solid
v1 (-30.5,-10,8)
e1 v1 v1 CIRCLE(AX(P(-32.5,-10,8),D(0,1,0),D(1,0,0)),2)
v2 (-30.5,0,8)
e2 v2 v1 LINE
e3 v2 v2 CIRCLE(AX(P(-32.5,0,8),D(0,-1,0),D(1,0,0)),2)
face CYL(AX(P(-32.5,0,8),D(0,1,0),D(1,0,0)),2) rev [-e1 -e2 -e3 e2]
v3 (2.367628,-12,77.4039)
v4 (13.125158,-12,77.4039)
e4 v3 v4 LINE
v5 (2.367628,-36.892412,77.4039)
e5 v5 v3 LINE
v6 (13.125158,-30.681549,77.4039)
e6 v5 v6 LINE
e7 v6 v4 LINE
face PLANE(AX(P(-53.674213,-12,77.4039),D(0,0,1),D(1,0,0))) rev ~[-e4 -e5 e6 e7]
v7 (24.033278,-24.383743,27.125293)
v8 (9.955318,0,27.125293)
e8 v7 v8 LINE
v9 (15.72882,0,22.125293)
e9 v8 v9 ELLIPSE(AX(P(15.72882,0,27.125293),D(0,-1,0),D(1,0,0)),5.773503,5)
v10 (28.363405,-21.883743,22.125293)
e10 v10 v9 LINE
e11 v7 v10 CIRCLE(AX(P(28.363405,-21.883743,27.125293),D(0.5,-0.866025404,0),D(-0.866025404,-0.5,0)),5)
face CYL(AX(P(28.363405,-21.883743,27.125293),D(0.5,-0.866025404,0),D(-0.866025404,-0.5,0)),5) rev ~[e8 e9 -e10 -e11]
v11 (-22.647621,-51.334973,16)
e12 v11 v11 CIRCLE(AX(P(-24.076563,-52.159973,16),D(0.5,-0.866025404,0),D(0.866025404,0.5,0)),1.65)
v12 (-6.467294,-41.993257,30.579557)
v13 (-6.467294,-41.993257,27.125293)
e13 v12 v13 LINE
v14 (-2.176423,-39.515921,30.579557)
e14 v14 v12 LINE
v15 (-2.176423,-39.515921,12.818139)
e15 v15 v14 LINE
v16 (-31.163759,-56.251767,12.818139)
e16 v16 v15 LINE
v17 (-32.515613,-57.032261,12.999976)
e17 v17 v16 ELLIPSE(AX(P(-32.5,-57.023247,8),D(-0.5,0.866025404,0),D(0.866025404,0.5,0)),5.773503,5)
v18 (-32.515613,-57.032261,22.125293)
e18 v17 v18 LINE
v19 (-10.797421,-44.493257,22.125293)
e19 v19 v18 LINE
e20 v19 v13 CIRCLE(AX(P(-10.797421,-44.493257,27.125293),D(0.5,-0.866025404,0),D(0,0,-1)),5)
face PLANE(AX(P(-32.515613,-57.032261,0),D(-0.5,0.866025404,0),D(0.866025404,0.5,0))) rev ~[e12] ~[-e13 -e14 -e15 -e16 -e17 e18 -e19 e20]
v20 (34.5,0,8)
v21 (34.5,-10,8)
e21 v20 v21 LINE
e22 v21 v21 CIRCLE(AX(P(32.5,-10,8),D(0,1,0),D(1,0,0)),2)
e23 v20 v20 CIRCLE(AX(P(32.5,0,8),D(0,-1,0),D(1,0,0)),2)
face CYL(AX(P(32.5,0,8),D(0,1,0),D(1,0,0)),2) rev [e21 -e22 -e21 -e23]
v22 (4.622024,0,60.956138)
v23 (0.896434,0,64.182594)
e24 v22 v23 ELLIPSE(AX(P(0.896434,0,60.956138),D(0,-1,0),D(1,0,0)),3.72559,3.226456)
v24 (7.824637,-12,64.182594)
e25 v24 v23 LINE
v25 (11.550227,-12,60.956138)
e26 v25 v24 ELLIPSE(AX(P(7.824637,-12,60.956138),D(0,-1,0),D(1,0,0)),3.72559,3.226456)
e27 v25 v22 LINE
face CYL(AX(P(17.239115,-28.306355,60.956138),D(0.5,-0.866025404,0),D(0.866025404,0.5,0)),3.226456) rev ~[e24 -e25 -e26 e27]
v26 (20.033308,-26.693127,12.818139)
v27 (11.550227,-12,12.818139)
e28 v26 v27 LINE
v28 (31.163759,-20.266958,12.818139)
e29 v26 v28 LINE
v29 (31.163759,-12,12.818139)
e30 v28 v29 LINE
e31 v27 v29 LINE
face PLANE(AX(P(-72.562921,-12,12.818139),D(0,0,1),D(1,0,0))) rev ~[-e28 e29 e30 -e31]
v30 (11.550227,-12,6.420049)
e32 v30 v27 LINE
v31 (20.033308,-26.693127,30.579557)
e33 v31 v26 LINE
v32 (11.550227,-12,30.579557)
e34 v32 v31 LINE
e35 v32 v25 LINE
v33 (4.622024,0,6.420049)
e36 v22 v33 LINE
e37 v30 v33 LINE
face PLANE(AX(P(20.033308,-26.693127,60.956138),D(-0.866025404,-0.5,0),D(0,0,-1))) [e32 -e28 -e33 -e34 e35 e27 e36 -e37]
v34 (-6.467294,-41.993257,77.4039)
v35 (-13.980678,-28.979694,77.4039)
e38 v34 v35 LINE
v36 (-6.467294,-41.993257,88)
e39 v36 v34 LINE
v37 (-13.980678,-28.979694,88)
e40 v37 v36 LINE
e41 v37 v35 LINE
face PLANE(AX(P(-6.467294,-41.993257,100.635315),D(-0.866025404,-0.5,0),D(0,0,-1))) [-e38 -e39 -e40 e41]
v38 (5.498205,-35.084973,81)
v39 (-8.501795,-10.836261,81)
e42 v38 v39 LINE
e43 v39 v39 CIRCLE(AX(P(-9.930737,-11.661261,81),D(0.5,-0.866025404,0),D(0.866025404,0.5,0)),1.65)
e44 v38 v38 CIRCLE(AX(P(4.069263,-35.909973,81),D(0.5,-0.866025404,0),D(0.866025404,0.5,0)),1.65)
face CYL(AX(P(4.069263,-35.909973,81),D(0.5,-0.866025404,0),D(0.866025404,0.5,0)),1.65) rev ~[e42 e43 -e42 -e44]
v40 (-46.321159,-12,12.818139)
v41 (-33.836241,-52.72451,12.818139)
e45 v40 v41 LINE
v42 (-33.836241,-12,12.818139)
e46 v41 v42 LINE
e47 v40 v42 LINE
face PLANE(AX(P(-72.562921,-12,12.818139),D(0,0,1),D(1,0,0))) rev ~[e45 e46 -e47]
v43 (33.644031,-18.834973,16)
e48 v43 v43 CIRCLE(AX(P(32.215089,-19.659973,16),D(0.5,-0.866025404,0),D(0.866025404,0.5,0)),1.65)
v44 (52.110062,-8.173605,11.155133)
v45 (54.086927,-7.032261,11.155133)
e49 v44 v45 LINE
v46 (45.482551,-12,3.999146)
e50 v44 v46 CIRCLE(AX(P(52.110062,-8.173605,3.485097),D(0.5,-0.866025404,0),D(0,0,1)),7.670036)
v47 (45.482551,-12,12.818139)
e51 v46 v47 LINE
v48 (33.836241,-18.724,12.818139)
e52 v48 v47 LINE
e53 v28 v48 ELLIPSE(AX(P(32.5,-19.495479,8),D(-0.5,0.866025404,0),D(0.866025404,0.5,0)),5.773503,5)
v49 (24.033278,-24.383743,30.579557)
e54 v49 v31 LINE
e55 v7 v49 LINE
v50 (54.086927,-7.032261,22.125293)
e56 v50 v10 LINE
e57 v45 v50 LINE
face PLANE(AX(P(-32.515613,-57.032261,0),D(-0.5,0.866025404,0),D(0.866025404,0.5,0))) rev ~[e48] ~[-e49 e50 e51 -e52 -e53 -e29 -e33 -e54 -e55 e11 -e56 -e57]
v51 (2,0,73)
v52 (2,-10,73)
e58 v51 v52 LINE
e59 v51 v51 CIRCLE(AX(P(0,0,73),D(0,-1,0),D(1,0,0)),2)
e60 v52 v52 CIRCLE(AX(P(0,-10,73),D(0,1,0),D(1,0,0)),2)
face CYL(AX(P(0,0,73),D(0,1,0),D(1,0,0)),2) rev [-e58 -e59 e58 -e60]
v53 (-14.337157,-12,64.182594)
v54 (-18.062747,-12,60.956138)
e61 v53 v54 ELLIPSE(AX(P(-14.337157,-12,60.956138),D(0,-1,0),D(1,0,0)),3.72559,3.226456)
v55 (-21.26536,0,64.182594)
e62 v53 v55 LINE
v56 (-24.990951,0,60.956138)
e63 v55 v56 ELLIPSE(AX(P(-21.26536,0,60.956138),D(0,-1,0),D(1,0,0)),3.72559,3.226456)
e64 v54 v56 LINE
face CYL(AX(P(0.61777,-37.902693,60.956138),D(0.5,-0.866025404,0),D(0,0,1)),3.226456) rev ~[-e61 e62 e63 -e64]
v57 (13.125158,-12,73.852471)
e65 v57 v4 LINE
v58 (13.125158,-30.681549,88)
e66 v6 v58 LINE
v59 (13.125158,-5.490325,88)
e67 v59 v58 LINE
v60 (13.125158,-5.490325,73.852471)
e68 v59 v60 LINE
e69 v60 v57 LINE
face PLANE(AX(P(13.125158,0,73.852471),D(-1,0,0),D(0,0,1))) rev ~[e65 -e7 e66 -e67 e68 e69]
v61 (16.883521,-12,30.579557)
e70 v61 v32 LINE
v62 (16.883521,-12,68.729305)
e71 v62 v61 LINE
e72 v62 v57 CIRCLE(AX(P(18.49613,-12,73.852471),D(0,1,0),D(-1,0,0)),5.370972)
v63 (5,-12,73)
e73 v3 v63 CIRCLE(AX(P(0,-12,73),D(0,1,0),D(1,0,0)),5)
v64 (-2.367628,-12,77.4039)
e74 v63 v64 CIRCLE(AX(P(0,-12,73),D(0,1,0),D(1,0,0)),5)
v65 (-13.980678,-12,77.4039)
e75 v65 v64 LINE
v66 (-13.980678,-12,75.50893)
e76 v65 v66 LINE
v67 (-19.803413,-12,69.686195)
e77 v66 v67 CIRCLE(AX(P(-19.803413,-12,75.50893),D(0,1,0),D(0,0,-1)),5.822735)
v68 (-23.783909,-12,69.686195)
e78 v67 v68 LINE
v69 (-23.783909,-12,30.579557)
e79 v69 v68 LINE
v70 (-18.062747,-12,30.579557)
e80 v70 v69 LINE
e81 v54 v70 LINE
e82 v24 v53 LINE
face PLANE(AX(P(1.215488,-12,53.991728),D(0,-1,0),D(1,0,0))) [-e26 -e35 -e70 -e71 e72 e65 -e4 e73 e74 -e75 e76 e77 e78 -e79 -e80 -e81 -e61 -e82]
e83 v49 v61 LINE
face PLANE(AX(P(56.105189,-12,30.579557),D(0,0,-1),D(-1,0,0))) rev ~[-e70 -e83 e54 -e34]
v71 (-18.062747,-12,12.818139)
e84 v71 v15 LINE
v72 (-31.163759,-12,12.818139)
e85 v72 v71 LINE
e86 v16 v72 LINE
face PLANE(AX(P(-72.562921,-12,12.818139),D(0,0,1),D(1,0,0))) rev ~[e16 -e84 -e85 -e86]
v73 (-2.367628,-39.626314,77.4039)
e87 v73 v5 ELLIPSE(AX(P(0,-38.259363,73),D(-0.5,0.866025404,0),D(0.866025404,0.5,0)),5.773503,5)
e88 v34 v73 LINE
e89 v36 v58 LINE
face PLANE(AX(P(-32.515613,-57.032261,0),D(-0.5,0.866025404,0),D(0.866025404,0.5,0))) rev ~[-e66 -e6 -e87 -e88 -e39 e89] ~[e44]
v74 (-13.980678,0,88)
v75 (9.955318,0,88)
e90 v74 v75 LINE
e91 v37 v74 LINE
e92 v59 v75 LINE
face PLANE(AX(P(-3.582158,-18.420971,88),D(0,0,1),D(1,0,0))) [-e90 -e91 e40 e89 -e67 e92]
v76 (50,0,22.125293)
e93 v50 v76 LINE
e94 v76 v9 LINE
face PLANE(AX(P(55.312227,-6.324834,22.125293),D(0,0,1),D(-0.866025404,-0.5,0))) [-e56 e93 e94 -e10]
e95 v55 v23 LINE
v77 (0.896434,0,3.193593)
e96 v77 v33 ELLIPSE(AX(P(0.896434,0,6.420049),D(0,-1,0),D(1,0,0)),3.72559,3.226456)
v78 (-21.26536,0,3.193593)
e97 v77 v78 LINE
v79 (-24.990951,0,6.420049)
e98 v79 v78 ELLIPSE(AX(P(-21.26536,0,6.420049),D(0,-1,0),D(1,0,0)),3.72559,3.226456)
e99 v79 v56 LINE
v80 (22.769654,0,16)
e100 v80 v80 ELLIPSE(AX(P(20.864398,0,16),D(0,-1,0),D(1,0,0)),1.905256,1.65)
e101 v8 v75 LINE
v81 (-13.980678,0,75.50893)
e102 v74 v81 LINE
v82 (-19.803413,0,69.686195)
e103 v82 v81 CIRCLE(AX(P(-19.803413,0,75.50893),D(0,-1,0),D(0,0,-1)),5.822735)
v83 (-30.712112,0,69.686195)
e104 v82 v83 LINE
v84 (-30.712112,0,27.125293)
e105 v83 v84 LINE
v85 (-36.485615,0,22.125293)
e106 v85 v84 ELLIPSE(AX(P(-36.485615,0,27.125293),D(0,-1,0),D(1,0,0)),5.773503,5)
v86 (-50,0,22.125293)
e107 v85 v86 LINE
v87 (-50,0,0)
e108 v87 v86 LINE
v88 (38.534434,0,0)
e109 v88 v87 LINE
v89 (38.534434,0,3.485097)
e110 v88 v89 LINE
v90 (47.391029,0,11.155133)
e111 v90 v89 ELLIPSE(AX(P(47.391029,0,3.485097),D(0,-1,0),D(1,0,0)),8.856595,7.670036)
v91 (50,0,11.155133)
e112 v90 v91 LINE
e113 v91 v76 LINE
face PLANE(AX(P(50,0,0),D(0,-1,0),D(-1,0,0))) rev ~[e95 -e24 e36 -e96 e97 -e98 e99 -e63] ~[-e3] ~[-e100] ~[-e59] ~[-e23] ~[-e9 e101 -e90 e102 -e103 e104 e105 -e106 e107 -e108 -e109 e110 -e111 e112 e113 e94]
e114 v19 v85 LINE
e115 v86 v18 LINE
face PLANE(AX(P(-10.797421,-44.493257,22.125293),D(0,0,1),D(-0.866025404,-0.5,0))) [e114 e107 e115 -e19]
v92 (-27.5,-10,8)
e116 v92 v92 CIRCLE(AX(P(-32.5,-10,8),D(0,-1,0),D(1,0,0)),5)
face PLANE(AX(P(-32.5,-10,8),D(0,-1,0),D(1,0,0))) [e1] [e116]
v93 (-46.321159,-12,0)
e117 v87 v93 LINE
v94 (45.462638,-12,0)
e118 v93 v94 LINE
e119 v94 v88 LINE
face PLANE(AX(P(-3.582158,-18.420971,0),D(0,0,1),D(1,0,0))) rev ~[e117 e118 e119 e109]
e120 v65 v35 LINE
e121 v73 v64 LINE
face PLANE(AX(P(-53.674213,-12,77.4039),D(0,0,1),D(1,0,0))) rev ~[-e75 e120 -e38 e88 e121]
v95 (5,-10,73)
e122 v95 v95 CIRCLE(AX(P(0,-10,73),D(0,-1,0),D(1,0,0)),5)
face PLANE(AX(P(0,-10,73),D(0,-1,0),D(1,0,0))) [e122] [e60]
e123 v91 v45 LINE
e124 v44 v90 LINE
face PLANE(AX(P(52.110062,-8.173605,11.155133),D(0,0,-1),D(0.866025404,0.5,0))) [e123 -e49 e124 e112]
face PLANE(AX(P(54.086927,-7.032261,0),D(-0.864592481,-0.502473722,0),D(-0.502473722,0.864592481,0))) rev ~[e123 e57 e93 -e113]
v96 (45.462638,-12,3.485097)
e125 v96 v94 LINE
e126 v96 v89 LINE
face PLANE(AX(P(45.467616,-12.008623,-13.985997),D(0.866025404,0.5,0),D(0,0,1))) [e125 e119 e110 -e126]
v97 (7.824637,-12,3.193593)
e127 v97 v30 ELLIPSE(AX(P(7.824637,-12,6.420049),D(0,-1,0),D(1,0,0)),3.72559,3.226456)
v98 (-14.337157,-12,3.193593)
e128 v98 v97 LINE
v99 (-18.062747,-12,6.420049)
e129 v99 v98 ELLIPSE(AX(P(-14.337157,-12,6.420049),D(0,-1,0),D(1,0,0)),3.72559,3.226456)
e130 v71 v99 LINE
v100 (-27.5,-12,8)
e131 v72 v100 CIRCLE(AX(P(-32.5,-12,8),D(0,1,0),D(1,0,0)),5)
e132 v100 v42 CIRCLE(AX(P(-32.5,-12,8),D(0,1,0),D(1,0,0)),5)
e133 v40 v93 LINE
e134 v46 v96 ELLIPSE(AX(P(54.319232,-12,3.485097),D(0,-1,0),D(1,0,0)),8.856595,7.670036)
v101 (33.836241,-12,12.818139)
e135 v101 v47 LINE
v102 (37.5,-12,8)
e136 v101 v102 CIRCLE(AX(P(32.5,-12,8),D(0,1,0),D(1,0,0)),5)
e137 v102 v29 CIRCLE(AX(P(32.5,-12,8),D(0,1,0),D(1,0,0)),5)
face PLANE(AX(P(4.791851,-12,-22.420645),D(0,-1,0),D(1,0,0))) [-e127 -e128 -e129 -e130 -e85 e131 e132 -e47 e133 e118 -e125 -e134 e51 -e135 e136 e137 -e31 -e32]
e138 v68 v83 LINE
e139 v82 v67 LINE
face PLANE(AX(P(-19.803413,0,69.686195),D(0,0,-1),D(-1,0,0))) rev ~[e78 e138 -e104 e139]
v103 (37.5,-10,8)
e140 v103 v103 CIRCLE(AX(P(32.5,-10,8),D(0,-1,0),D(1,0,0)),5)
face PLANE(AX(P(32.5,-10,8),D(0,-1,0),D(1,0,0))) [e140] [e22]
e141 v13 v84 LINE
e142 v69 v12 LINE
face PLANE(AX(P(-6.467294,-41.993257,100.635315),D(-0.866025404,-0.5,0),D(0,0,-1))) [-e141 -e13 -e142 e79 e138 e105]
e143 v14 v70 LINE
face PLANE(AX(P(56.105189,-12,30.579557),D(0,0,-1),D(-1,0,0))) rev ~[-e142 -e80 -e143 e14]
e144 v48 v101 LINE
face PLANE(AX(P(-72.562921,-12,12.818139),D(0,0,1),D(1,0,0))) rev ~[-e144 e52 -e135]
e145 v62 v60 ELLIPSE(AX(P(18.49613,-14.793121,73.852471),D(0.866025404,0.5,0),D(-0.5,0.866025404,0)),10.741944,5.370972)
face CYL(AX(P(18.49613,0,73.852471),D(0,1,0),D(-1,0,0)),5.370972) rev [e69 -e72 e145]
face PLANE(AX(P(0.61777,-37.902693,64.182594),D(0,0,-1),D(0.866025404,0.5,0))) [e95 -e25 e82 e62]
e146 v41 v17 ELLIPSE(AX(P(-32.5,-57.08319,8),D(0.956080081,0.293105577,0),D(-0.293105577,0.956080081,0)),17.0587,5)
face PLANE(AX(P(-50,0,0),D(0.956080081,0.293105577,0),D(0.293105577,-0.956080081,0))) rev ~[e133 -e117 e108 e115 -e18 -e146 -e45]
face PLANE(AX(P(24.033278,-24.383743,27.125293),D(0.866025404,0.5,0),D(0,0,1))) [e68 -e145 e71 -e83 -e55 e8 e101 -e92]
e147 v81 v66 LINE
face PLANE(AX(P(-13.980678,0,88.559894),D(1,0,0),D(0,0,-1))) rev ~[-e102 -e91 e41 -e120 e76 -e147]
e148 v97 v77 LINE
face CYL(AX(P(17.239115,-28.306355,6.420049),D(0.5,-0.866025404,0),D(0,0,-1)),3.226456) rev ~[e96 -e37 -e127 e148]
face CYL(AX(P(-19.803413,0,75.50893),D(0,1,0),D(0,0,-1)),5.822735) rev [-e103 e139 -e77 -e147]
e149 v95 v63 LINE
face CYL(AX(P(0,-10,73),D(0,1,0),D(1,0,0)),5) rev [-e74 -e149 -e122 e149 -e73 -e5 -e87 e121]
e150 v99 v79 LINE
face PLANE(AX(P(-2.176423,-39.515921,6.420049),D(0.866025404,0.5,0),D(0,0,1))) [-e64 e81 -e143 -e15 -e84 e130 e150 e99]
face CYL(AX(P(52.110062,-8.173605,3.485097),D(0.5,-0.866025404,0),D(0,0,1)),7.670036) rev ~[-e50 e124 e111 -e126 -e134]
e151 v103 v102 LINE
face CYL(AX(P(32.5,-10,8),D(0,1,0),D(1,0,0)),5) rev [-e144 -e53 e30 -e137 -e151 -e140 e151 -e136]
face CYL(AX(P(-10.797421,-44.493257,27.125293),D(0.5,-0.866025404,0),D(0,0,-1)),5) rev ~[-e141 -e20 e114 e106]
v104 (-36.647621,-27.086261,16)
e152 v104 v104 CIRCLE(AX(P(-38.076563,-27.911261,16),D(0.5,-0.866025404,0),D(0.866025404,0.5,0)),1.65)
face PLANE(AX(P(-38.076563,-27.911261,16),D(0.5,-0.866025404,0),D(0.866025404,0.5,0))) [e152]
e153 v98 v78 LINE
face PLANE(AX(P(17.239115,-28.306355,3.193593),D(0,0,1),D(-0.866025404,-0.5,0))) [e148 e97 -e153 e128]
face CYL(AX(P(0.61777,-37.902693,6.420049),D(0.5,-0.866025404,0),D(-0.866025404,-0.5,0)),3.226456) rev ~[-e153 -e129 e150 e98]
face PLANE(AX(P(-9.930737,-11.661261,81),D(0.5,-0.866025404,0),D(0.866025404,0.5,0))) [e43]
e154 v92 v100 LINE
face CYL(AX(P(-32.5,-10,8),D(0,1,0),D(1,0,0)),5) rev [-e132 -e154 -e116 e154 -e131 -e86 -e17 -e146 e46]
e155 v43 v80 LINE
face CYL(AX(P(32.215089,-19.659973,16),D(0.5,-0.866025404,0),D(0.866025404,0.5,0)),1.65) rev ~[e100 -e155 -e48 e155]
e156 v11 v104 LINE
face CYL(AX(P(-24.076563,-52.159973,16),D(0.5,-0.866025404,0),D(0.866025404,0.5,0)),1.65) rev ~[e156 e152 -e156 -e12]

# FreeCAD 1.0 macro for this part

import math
import FreeCAD as App
import Part
import Sketcher
from FreeCAD import Vector
Q = App.Units.Quantity


def add_polygon(sketch, points):
    """Adds a closed chain of lines whose ends are joined by coincident constraints."""
    first, n = sketch.GeometryCount, len(points)
    for a, b in zip(points, points[1:] + points[:1]):
        sketch.addGeometry(Part.LineSegment(App.Vector(*a, 0), App.Vector(*b, 0)), False)
    for i in range(n):
        sketch.addConstraint(Sketcher.Constraint("Coincident", first + i, 2, first + (i + 1) % n, 1))

doc = App.newDocument("Part")
body = doc.addObject("PartDesign::Body", "Body")

# Sketch on XY plane
sketch1 = doc.addObject("Sketcher::SketchObject", "Sketch")
body.addObject(sketch1)
sketch1.AttachmentSupport = (doc.XY_Plane, [""])
sketch1.MapMode = "FlatFace"
add_polygon(sketch1, [(-50, 0), (-32.515613, -57.032261), (54.086927, -7.032261), (50, 0)])  # lines 0-3
sketch1.addConstraint(Sketcher.Constraint("Horizontal", 3))
sketch1.addConstraint(Sketcher.Constraint("Symmetric", 2, 2, 3, 2, -1, 1))
sketch1.addConstraint(Sketcher.Constraint("DistanceX", 3, 2, 3, 1, 100.0))
sketch1.addConstraint(Sketcher.Constraint("Angle", 1, Q("30 deg")))
sketch1.addConstraint(Sketcher.Constraint("Distance", 1, 100.0))
sketch1.addConstraint(Sketcher.Constraint("Distance", 0, 59.65218))
sketch1.addConstraint(Sketcher.Constraint("DistanceY", 0, 2, -1, 1, 57.032261))
pad1 = doc.addObject("PartDesign::Pad", "Pad")
body.addObject(pad1)
pad1.Profile = sketch1
pad1.Length = 88

# Sketch on XZ plane
sketch2 = doc.addObject("Sketcher::SketchObject", "Sketch001")
body.addObject(sketch2)
sketch2.AttachmentSupport = (doc.XZ_Plane, [""])
sketch2.MapMode = "FlatFace"
sketch2.addGeometry(Part.Circle(Vector(-32.5, 8, 0), Vector(0, 0, 1), 2), False)
sketch2.addGeometry(Part.Circle(Vector(32.5, 8, 0), Vector(0, 0, 1), 2), False)
sketch2.addGeometry(Part.Circle(Vector(0, 73, 0), Vector(0, 0, 1), 2), False)
sketch2.addGeometry(Part.ArcOfCircle(Part.Circle(Vector(-31.448877, 88.559894, 0), Vector(0, 0, 1), 5.822735), math.radians(90), math.radians(180)), False)
sketch2.addGeometry(Part.LineSegment(Vector(-37.271612, 88.559894, 0), Vector(-37.271612, 75.50893, 0)), False)
sketch2.addGeometry(Part.ArcOfCircle(Part.Circle(Vector(-31.448877, 75.50893, 0), Vector(0, 0, 1), 5.822735), math.radians(180), math.radians(270)), False)
sketch2.addGeometry(Part.LineSegment(Vector(-31.448877, 69.686195, 0), Vector(-19.803413, 69.686195, 0)), False)
sketch2.addGeometry(Part.ArcOfCircle(Part.Circle(Vector(-19.803413, 75.50893, 0), Vector(0, 0, 1), 5.822735), math.radians(-90), math.radians(0)), False)
sketch2.addGeometry(Part.LineSegment(Vector(-13.980678, 75.50893, 0), Vector(-13.980678, 88.559894, 0)), False)
sketch2.addGeometry(Part.ArcOfCircle(Part.Circle(Vector(-19.803413, 88.559894, 0), Vector(0, 0, 1), 5.822735), math.radians(0), math.radians(90)), False)
sketch2.addGeometry(Part.LineSegment(Vector(-19.803413, 94.382629, 0), Vector(-31.448877, 94.382629, 0)), False)
sketch2.addGeometry(Part.ArcOfCircle(Part.Circle(Vector(18.49613, 93.027336, 0), Vector(0, 0, 1), 5.370972), math.radians(90), math.radians(180)), False)
sketch2.addGeometry(Part.LineSegment(Vector(13.125158, 93.027336, 0), Vector(13.125158, 73.852471, 0)), False)
sketch2.addGeometry(Part.ArcOfCircle(Part.Circle(Vector(18.49613, 73.852471, 0), Vector(0, 0, 1), 5.370972), math.radians(180), math.radians(270)), False)
sketch2.addGeometry(Part.LineSegment(Vector(18.49613, 68.481499, 0), Vector(29.238075, 68.481499, 0)), False)
sketch2.addGeometry(Part.ArcOfCircle(Part.Circle(Vector(29.238075, 73.852471, 0), Vector(0, 0, 1), 5.370972), math.radians(-90), math.radians(0)), False)
sketch2.addGeometry(Part.LineSegment(Vector(34.609047, 73.852471, 0), Vector(34.609047, 93.027336, 0)), False)
sketch2.addGeometry(Part.ArcOfCircle(Part.Circle(Vector(29.238075, 93.027336, 0), Vector(0, 0, 1), 5.370972), math.radians(0), math.radians(90)), False)
sketch2.addGeometry(Part.LineSegment(Vector(29.238075, 98.398308, 0), Vector(18.49613, 98.398308, 0)), False)
sketch2.addConstraint(Sketcher.Constraint("Tangent", 3, 2, 4, 1))
sketch2.addConstraint(Sketcher.Constraint("Tangent", 4, 2, 5, 1))
sketch2.addConstraint(Sketcher.Constraint("Tangent", 5, 2, 6, 1))
sketch2.addConstraint(Sketcher.Constraint("Tangent", 6, 2, 7, 1))
sketch2.addConstraint(Sketcher.Constraint("Tangent", 7, 2, 8, 1))
sketch2.addConstraint(Sketcher.Constraint("Tangent", 8, 2, 9, 1))
sketch2.addConstraint(Sketcher.Constraint("Tangent", 9, 2, 10, 1))
sketch2.addConstraint(Sketcher.Constraint("Tangent", 10, 2, 3, 1))
sketch2.addConstraint(Sketcher.Constraint("Tangent", 11, 2, 12, 1))
sketch2.addConstraint(Sketcher.Constraint("Tangent", 12, 2, 13, 1))
sketch2.addConstraint(Sketcher.Constraint("Tangent", 13, 2, 14, 1))
sketch2.addConstraint(Sketcher.Constraint("Tangent", 14, 2, 15, 1))
sketch2.addConstraint(Sketcher.Constraint("Tangent", 15, 2, 16, 1))
sketch2.addConstraint(Sketcher.Constraint("Tangent", 16, 2, 17, 1))
sketch2.addConstraint(Sketcher.Constraint("Tangent", 17, 2, 18, 1))
sketch2.addConstraint(Sketcher.Constraint("Tangent", 18, 2, 11, 1))
sketch2.addConstraint(Sketcher.Constraint("Vertical", 4))
sketch2.addConstraint(Sketcher.Constraint("Horizontal", 6))
sketch2.addConstraint(Sketcher.Constraint("Vertical", 8))
sketch2.addConstraint(Sketcher.Constraint("Horizontal", 10))
sketch2.addConstraint(Sketcher.Constraint("Vertical", 12))
sketch2.addConstraint(Sketcher.Constraint("Horizontal", 14))
sketch2.addConstraint(Sketcher.Constraint("Vertical", 16))
sketch2.addConstraint(Sketcher.Constraint("Horizontal", 18))
sketch2.addConstraint(Sketcher.Constraint("Equal", 0, 1))
sketch2.addConstraint(Sketcher.Constraint("Equal", 1, 2))
sketch2.addConstraint(Sketcher.Constraint("Equal", 3, 5))
sketch2.addConstraint(Sketcher.Constraint("Equal", 5, 7))
sketch2.addConstraint(Sketcher.Constraint("Equal", 7, 9))
sketch2.addConstraint(Sketcher.Constraint("Equal", 11, 13))
sketch2.addConstraint(Sketcher.Constraint("Equal", 13, 15))
sketch2.addConstraint(Sketcher.Constraint("Equal", 15, 17))
sketch2.addConstraint(Sketcher.Constraint("Symmetric", 0, 3, 1, 3, -2))
sketch2.addConstraint(Sketcher.Constraint("PointOnObject", 2, 3, -2))
sketch2.addConstraint(Sketcher.Constraint("Diameter", 0, 4.0))
sketch2.addConstraint(Sketcher.Constraint("DistanceY", -1, 1, 0, 3, 8.0))
sketch2.addConstraint(Sketcher.Constraint("DistanceY", -1, 1, 2, 3, 73.0))
sketch2.addConstraint(Sketcher.Constraint("DistanceX", 0, 3, 1, 3, 65.0))
sketch2.addConstraint(Sketcher.Constraint("Radius", 3, 5.822735))
sketch2.addConstraint(Sketcher.Constraint("Radius", 11, 5.370972))
sketch2.addConstraint(Sketcher.Constraint("DistanceY", -1, 1, 13, 2, 68.481499))
sketch2.addConstraint(Sketcher.Constraint("DistanceX", 3, 2, 9, 3, 17.468199))
sketch2.addConstraint(Sketcher.Constraint("DistanceY", 5, 2, 3, 3, 18.873699))
sketch2.addConstraint(Sketcher.Constraint("DistanceX", 14, 1, 14, 2, 10.741945))
sketch2.addConstraint(Sketcher.Constraint("DistanceY", 12, 2, 12, 1, 19.174865))
sketch2.addConstraint(Sketcher.Constraint("DistanceY", -1, 1, 5, 3, 75.50893))
sketch2.addConstraint(Sketcher.Constraint("DistanceX", -1, 1, 11, 3, 18.49613))
sketch2.addConstraint(Sketcher.Constraint("DistanceX", 7, 2, -1, 1, 13.980678))
pocket1 = doc.addObject("PartDesign::Pocket", "Pocket")
body.addObject(pocket1)
pocket1.Profile = sketch2
pocket1.Type = "ThroughAll"
pocket1.Midplane = True

# Sketch on XZ plane
sketch3 = doc.addObject("Sketcher::SketchObject", "Sketch002")
body.addObject(sketch3)
sketch3.AttachmentSupport = (doc.XZ_Plane, [""])
sketch3.MapMode = "FlatFace"
sketch3.AttachmentOffset = App.Placement(Vector(0, 0, 10), App.Rotation())
sketch3.addGeometry(Part.Circle(Vector(-32.5, 8, 0), Vector(0, 0, 1), 5), False)
sketch3.addGeometry(Part.Circle(Vector(32.5, 8, 0), Vector(0, 0, 1), 5), False)
sketch3.addGeometry(Part.Circle(Vector(0, 73, 0), Vector(0, 0, 1), 5), False)
sketch3.addConstraint(Sketcher.Constraint("Equal", 0, 1))
sketch3.addConstraint(Sketcher.Constraint("Equal", 1, 2))
sketch3.addConstraint(Sketcher.Constraint("Symmetric", 0, 3, 1, 3, -2))
sketch3.addConstraint(Sketcher.Constraint("PointOnObject", 2, 3, -2))
sketch3.addConstraint(Sketcher.Constraint("Diameter", 0, 10.0))
sketch3.addConstraint(Sketcher.Constraint("DistanceY", -1, 1, 0, 3, 8.0))
sketch3.addConstraint(Sketcher.Constraint("DistanceY", -1, 1, 2, 3, 73.0))
sketch3.addConstraint(Sketcher.Constraint("DistanceX", 0, 3, 1, 3, 65.0))
pocket2 = doc.addObject("PartDesign::Pocket", "Pocket001")
body.addObject(pocket2)
pocket2.Profile = sketch3
pocket2.Type = "ThroughAll"
pocket2.Reversed = True

# Sketch on an angled plane
sketch4 = doc.addObject("Sketcher::SketchObject", "Sketch003")
body.addObject(sketch4)
sketch4.Placement = App.Placement(Vector(16.56679, -28.694522, 0), App.Rotation(Vector(0.866025404, 0.5, 0), Vector(0, 0, 1), Vector(0.5, -0.866025404, 0), "ZXY"))
sketch4.addGeometry(Part.Circle(Vector(18.069099, 16, 0), Vector(0, 0, 1), 1.65), False)
sketch4.addGeometry(Part.Circle(Vector(-46.930901, 16, 0), Vector(0, 0, 1), 1.65), False)
sketch4.addGeometry(Part.Circle(Vector(-14.430901, 81, 0), Vector(0, 0, 1), 1.65), False)
sketch4.addConstraint(Sketcher.Constraint("Equal", 0, 1))
sketch4.addConstraint(Sketcher.Constraint("Equal", 1, 2))
sketch4.addConstraint(Sketcher.Constraint("Horizontal", 0, 3, 1, 3))
sketch4.addConstraint(Sketcher.Constraint("Diameter", 0, 3.3))
sketch4.addConstraint(Sketcher.Constraint("DistanceY", -1, 1, 0, 3, 16.0))
sketch4.addConstraint(Sketcher.Constraint("DistanceY", -1, 1, 2, 3, 81.0))
sketch4.addConstraint(Sketcher.Constraint("DistanceX", 1, 3, 0, 3, 65.0))
sketch4.addConstraint(Sketcher.Constraint("DistanceX", 2, 3, 0, 3, 32.5))
sketch4.addConstraint(Sketcher.Constraint("DistanceX", -1, 1, 0, 3, 18.069099))
pocket3 = doc.addObject("PartDesign::Pocket", "Pocket002")
body.addObject(pocket3)
pocket3.Profile = sketch4
pocket3.Length = 28

# Sketch on an angled plane
sketch5 = doc.addObject("Sketcher::SketchObject", "Sketch004")
body.addObject(sketch5)
sketch5.Placement = App.Placement(Vector(16.56679, -28.694522, 0), App.Rotation(Vector(0.866025404, 0.5, 0), Vector(0, 0, 1), Vector(0.5, -0.866025404, 0), "ZXY"))
sketch5.addGeometry(Part.ArcOfCircle(Part.Circle(Vector(13.621558, 94.375282, 0), Vector(0, 0, 1), 5), math.radians(90), math.radians(180)), False)
sketch5.addGeometry(Part.LineSegment(Vector(8.621558, 94.375282, 0), Vector(8.621558, 27.125293, 0)), False)
sketch5.addGeometry(Part.ArcOfCircle(Part.Circle(Vector(13.621558, 27.125293, 0), Vector(0, 0, 1), 5), math.radians(180), math.radians(270)), False)
sketch5.addGeometry(Part.LineSegment(Vector(13.621558, 22.125293, 0), Vector(44.739377, 22.125293, 0)), False)
sketch5.addGeometry(Part.ArcOfCircle(Part.Circle(Vector(44.739377, 27.125293, 0), Vector(0, 0, 1), 5), math.radians(-90), math.radians(0)), False)
sketch5.addGeometry(Part.LineSegment(Vector(49.739377, 27.125293, 0), Vector(49.739377, 94.375282, 0)), False)
sketch5.addGeometry(Part.ArcOfCircle(Part.Circle(Vector(44.739377, 94.375282, 0), Vector(0, 0, 1), 5), math.radians(0), math.radians(90)), False)
sketch5.addGeometry(Part.LineSegment(Vector(44.739377, 99.375282, 0), Vector(13.621558, 99.375282, 0)), False)
sketch5.addGeometry(Part.ArcOfCircle(Part.Circle(Vector(-82.340685, 100.635315, 0), Vector(0, 0, 1), 5), math.radians(90), math.radians(180)), False)
sketch5.addGeometry(Part.LineSegment(Vector(-87.340685, 100.635315, 0), Vector(-87.340685, 27.125293, 0)), False)
sketch5.addGeometry(Part.ArcOfCircle(Part.Circle(Vector(-82.340685, 27.125293, 0), Vector(0, 0, 1), 5), math.radians(180), math.radians(270)), False)
sketch5.addGeometry(Part.LineSegment(Vector(-82.340685, 22.125293, 0), Vector(-31.59747, 22.125293, 0)), False)
sketch5.addGeometry(Part.ArcOfCircle(Part.Circle(Vector(-31.59747, 27.125293, 0), Vector(0, 0, 1), 5), math.radians(-90), math.radians(0)), False)
sketch5.addGeometry(Part.LineSegment(Vector(-26.59747, 27.125293, 0), Vector(-26.59747, 100.635315, 0)), False)
sketch5.addGeometry(Part.ArcOfCircle(Part.Circle(Vector(-31.59747, 100.635315, 0), Vector(0, 0, 1), 5), math.radians(0), math.radians(90)), False)
sketch5.addGeometry(Part.LineSegment(Vector(-31.59747, 105.635315, 0), Vector(-82.340685, 105.635315, 0)), False)
sketch5.addGeometry(Part.ArcOfCircle(Part.Circle(Vector(-18.416342, 60.956138, 0), Vector(0, 0, 1), 3.226456), math.radians(90), math.radians(180)), False)
sketch5.addGeometry(Part.LineSegment(Vector(-21.642798, 60.956138, 0), Vector(-21.642798, 6.420049, 0)), False)
sketch5.addGeometry(Part.ArcOfCircle(Part.Circle(Vector(-18.416342, 6.420049, 0), Vector(0, 0, 1), 3.226456), math.radians(180), math.radians(270)), False)
sketch5.addGeometry(Part.LineSegment(Vector(-18.416342, 3.193593, 0), Vector(0.776334, 3.193593, 0)), False)
sketch5.addGeometry(Part.ArcOfCircle(Part.Circle(Vector(0.776334, 6.420049, 0), Vector(0, 0, 1), 3.226456), math.radians(-90), math.radians(0)), False)
sketch5.addGeometry(Part.LineSegment(Vector(4.00279, 6.420049, 0), Vector(4.00279, 60.956138, 0)), False)
sketch5.addGeometry(Part.ArcOfCircle(Part.Circle(Vector(0.776334, 60.956138, 0), Vector(0, 0, 1), 3.226456), math.radians(0), math.radians(90)), False)
sketch5.addGeometry(Part.LineSegment(Vector(0.776334, 64.182594, 0), Vector(-18.416342, 64.182594, 0)), False)
sketch5.addGeometry(Part.ArcOfCircle(Part.Circle(Vector(41.041835, -13.985997, 0), Vector(0, 0, 1), 7.670036), math.radians(180), math.radians(270)), False)
sketch5.addGeometry(Part.LineSegment(Vector(41.041835, -21.656033, 0), Vector(57.219086, -21.656033, 0)), False)
sketch5.addGeometry(Part.ArcOfCircle(Part.Circle(Vector(57.219086, -13.985997, 0), Vector(0, 0, 1), 7.670036), math.radians(-90), math.radians(0)), False)
sketch5.addGeometry(Part.LineSegment(Vector(64.889122, -13.985997, 0), Vector(64.889122, 3.485097, 0)), False)
sketch5.addGeometry(Part.ArcOfCircle(Part.Circle(Vector(57.219086, 3.485097, 0), Vector(0, 0, 1), 7.670036), math.radians(0), math.radians(90)), False)
sketch5.addGeometry(Part.LineSegment(Vector(57.219086, 11.155133, 0), Vector(41.041835, 11.155133, 0)), False)
sketch5.addGeometry(Part.ArcOfCircle(Part.Circle(Vector(41.041835, 3.485097, 0), Vector(0, 0, 1), 7.670036), math.radians(90), math.radians(180)), False)
sketch5.addGeometry(Part.LineSegment(Vector(33.371799, 3.485097, 0), Vector(33.371799, -13.985997, 0)), False)
sketch5.addConstraint(Sketcher.Constraint("Tangent", 0, 2, 1, 1))
sketch5.addConstraint(Sketcher.Constraint("Tangent", 1, 2, 2, 1))
sketch5.addConstraint(Sketcher.Constraint("Tangent", 2, 2, 3, 1))
sketch5.addConstraint(Sketcher.Constraint("Tangent", 3, 2, 4, 1))
sketch5.addConstraint(Sketcher.Constraint("Tangent", 4, 2, 5, 1))
sketch5.addConstraint(Sketcher.Constraint("Tangent", 5, 2, 6, 1))
sketch5.addConstraint(Sketcher.Constraint("Tangent", 6, 2, 7, 1))
sketch5.addConstraint(Sketcher.Constraint("Tangent", 7, 2, 0, 1))
sketch5.addConstraint(Sketcher.Constraint("Tangent", 8, 2, 9, 1))
sketch5.addConstraint(Sketcher.Constraint("Tangent", 9, 2, 10, 1))
sketch5.addConstraint(Sketcher.Constraint("Tangent", 10, 2, 11, 1))
sketch5.addConstraint(Sketcher.Constraint("Tangent", 11, 2, 12, 1))
sketch5.addConstraint(Sketcher.Constraint("Tangent", 12, 2, 13, 1))
sketch5.addConstraint(Sketcher.Constraint("Tangent", 13, 2, 14, 1))
sketch5.addConstraint(Sketcher.Constraint("Tangent", 14, 2, 15, 1))
sketch5.addConstraint(Sketcher.Constraint("Tangent", 15, 2, 8, 1))
sketch5.addConstraint(Sketcher.Constraint("Tangent", 16, 2, 17, 1))
sketch5.addConstraint(Sketcher.Constraint("Tangent", 17, 2, 18, 1))
sketch5.addConstraint(Sketcher.Constraint("Tangent", 18, 2, 19, 1))
sketch5.addConstraint(Sketcher.Constraint("Tangent", 19, 2, 20, 1))
sketch5.addConstraint(Sketcher.Constraint("Tangent", 20, 2, 21, 1))
sketch5.addConstraint(Sketcher.Constraint("Tangent", 21, 2, 22, 1))
sketch5.addConstraint(Sketcher.Constraint("Tangent", 22, 2, 23, 1))
sketch5.addConstraint(Sketcher.Constraint("Tangent", 23, 2, 16, 1))
sketch5.addConstraint(Sketcher.Constraint("Tangent", 24, 2, 25, 1))
sketch5.addConstraint(Sketcher.Constraint("Tangent", 25, 2, 26, 1))
sketch5.addConstraint(Sketcher.Constraint("Tangent", 26, 2, 27, 1))
sketch5.addConstraint(Sketcher.Constraint("Tangent", 27, 2, 28, 1))
sketch5.addConstraint(Sketcher.Constraint("Tangent", 28, 2, 29, 1))
sketch5.addConstraint(Sketcher.Constraint("Tangent", 29, 2, 30, 1))
sketch5.addConstraint(Sketcher.Constraint("Tangent", 30, 2, 31, 1))
sketch5.addConstraint(Sketcher.Constraint("Tangent", 31, 2, 24, 1))
sketch5.addConstraint(Sketcher.Constraint("Vertical", 1))
sketch5.addConstraint(Sketcher.Constraint("Horizontal", 3))
sketch5.addConstraint(Sketcher.Constraint("Vertical", 5))
sketch5.addConstraint(Sketcher.Constraint("Horizontal", 7))
sketch5.addConstraint(Sketcher.Constraint("Vertical", 9))
sketch5.addConstraint(Sketcher.Constraint("Horizontal", 11))
sketch5.addConstraint(Sketcher.Constraint("Vertical", 13))
sketch5.addConstraint(Sketcher.Constraint("Horizontal", 15))
sketch5.addConstraint(Sketcher.Constraint("Vertical", 17))
sketch5.addConstraint(Sketcher.Constraint("Horizontal", 19))
sketch5.addConstraint(Sketcher.Constraint("Vertical", 21))
sketch5.addConstraint(Sketcher.Constraint("Horizontal", 23))
sketch5.addConstraint(Sketcher.Constraint("Horizontal", 25))
sketch5.addConstraint(Sketcher.Constraint("Vertical", 27))
sketch5.addConstraint(Sketcher.Constraint("Horizontal", 29))
sketch5.addConstraint(Sketcher.Constraint("Vertical", 31))
sketch5.addConstraint(Sketcher.Constraint("Equal", 0, 2))
sketch5.addConstraint(Sketcher.Constraint("Equal", 2, 4))
sketch5.addConstraint(Sketcher.Constraint("Equal", 4, 6))
sketch5.addConstraint(Sketcher.Constraint("Equal", 6, 8))
sketch5.addConstraint(Sketcher.Constraint("Equal", 8, 10))
sketch5.addConstraint(Sketcher.Constraint("Equal", 10, 12))
sketch5.addConstraint(Sketcher.Constraint("Equal", 12, 14))
sketch5.addConstraint(Sketcher.Constraint("Equal", 16, 18))
sketch5.addConstraint(Sketcher.Constraint("Equal", 18, 20))
sketch5.addConstraint(Sketcher.Constraint("Equal", 20, 22))
sketch5.addConstraint(Sketcher.Constraint("Equal", 24, 26))
sketch5.addConstraint(Sketcher.Constraint("Equal", 26, 28))
sketch5.addConstraint(Sketcher.Constraint("Equal", 28, 30))
sketch5.addConstraint(Sketcher.Constraint("Horizontal", 4, 3, 10, 3))
sketch5.addConstraint(Sketcher.Constraint("Radius", 0, 5.0))
sketch5.addConstraint(Sketcher.Constraint("Radius", 16, 3.226456))
sketch5.addConstraint(Sketcher.Constraint("Radius", 24, 7.670036))
sketch5.addConstraint(Sketcher.Constraint("DistanceX", 3, 1, 3, 2, 31.117819))
sketch5.addConstraint(Sketcher.Constraint("DistanceX", 25, 1, 25, 2, 16.177251))
sketch5.addConstraint(Sketcher.Constraint("DistanceY", 1, 2, 1, 1, 67.249989))
sketch5.addConstraint(Sketcher.Constraint("DistanceY", 9, 2, 9, 1, 73.510022))
sketch5.addConstraint(Sketcher.Constraint("DistanceY", 17, 2, 17, 1, 54.53609))
sketch5.addConstraint(Sketcher.Constraint("DistanceX", 16, 2, -1, 1, 21.642798))
sketch5.addConstraint(Sketcher.Constraint("DistanceX", -1, 1, 30, 2, 33.371799))
sketch5.addConstraint(Sketcher.Constraint("DistanceX", 16, 3, 0, 3, 32.0379))
sketch5.addConstraint(Sketcher.Constraint("DistanceX", 20, 3, 24, 3, 40.265501))
sketch5.addConstraint(Sketcher.Constraint("DistanceY", 18, 2, 11, 2, 18.9317))
sketch5.addConstraint(Sketcher.Constraint("DistanceX", 11, 1, 11, 2, 50.743216))
sketch5.addConstraint(Sketcher.Constraint("DistanceY", 27, 1, 27, 2, 17.471094))
sketch5.addConstraint(Sketcher.Constraint("DistanceX", 12, 3, -1, 1, 31.59747))
sketch5.addConstraint(Sketcher.Constraint("DistanceY", -1, 1, 16, 3, 60.956138))
sketch5.addConstraint(Sketcher.Constraint("DistanceY", 24, 3, 4, 3, 41.11129))
pocket4 = doc.addObject("PartDesign::Pocket", "Pocket003")
body.addObject(pocket4)
pocket4.Profile = sketch5
pocket4.Type = "ThroughAll"

# Sketch on XZ plane
sketch6 = doc.addObject("Sketcher::SketchObject", "Sketch005")
body.addObject(sketch6)
sketch6.AttachmentSupport = (doc.XZ_Plane, [""])
sketch6.MapMode = "FlatFace"
sketch6.AttachmentOffset = App.Placement(Vector(0, 0, 12), App.Rotation())
sketch6.addGeometry(Part.ArcOfCircle(Part.Circle(Vector(-72.562921, -4.909959, 0), Vector(0, 0, 1), 17.728098), math.radians(90), math.radians(180)), False)
sketch6.addGeometry(Part.LineSegment(Vector(-90.291019, -4.909959, 0), Vector(-90.291019, -39.931331, 0)), False)
sketch6.addGeometry(Part.ArcOfCircle(Part.Circle(Vector(-72.562921, -39.931331, 0), Vector(0, 0, 1), 17.728098), math.radians(180), math.radians(270)), False)
sketch6.addGeometry(Part.LineSegment(Vector(-72.562921, -57.659429, 0), Vector(82.146623, -57.659429, 0)), False)
sketch6.addGeometry(Part.ArcOfCircle(Part.Circle(Vector(82.146623, -39.931331, 0), Vector(0, 0, 1), 17.728098), math.radians(-90), math.radians(0)), False)
sketch6.addGeometry(Part.LineSegment(Vector(99.874721, -39.931331, 0), Vector(99.874721, -4.909959, 0)), False)
sketch6.addGeometry(Part.ArcOfCircle(Part.Circle(Vector(82.146623, -4.909959, 0), Vector(0, 0, 1), 17.728098), math.radians(0), math.radians(90)), False)
sketch6.addGeometry(Part.LineSegment(Vector(82.146623, 12.818139, 0), Vector(-72.562921, 12.818139, 0)), False)
sketch6.addGeometry(Part.ArcOfCircle(Part.Circle(Vector(-53.674213, 64.534405, 0), Vector(0, 0, 1), 12.869495), math.radians(90), math.radians(180)), False)
sketch6.addGeometry(Part.LineSegment(Vector(-66.543708, 64.534405, 0), Vector(-66.543708, 43.449052, 0)), False)
sketch6.addGeometry(Part.ArcOfCircle(Part.Circle(Vector(-53.674213, 43.449052, 0), Vector(0, 0, 1), 12.869495), math.radians(180), math.radians(270)), False)
sketch6.addGeometry(Part.LineSegment(Vector(-53.674213, 30.579557, 0), Vector(56.105189, 30.579557, 0)), False)
sketch6.addGeometry(Part.ArcOfCircle(Part.Circle(Vector(56.105189, 43.449052, 0), Vector(0, 0, 1), 12.869495), math.radians(-90), math.radians(0)), False)
sketch6.addGeometry(Part.LineSegment(Vector(68.974684, 43.449052, 0), Vector(68.974684, 64.534405, 0)), False)
sketch6.addGeometry(Part.ArcOfCircle(Part.Circle(Vector(56.105189, 64.534405, 0), Vector(0, 0, 1), 12.869495), math.radians(0), math.radians(90)), False)
sketch6.addGeometry(Part.LineSegment(Vector(56.105189, 77.4039, 0), Vector(-53.674213, 77.4039, 0)), False)
sketch6.addConstraint(Sketcher.Constraint("Tangent", 0, 2, 1, 1))
sketch6.addConstraint(Sketcher.Constraint("Tangent", 1, 2, 2, 1))
sketch6.addConstraint(Sketcher.Constraint("Tangent", 2, 2, 3, 1))
sketch6.addConstraint(Sketcher.Constraint("Tangent", 3, 2, 4, 1))
sketch6.addConstraint(Sketcher.Constraint("Tangent", 4, 2, 5, 1))
sketch6.addConstraint(Sketcher.Constraint("Tangent", 5, 2, 6, 1))
sketch6.addConstraint(Sketcher.Constraint("Tangent", 6, 2, 7, 1))
sketch6.addConstraint(Sketcher.Constraint("Tangent", 7, 2, 0, 1))
sketch6.addConstraint(Sketcher.Constraint("Tangent", 8, 2, 9, 1))
sketch6.addConstraint(Sketcher.Constraint("Tangent", 9, 2, 10, 1))
sketch6.addConstraint(Sketcher.Constraint("Tangent", 10, 2, 11, 1))
sketch6.addConstraint(Sketcher.Constraint("Tangent", 11, 2, 12, 1))
sketch6.addConstraint(Sketcher.Constraint("Tangent", 12, 2, 13, 1))
sketch6.addConstraint(Sketcher.Constraint("Tangent", 13, 2, 14, 1))
sketch6.addConstraint(Sketcher.Constraint("Tangent", 14, 2, 15, 1))
sketch6.addConstraint(Sketcher.Constraint("Tangent", 15, 2, 8, 1))
sketch6.addConstraint(Sketcher.Constraint("Vertical", 1))
sketch6.addConstraint(Sketcher.Constraint("Horizontal", 3))
sketch6.addConstraint(Sketcher.Constraint("Vertical", 5))
sketch6.addConstraint(Sketcher.Constraint("Horizontal", 7))
sketch6.addConstraint(Sketcher.Constraint("Vertical", 9))
sketch6.addConstraint(Sketcher.Constraint("Horizontal", 11))
sketch6.addConstraint(Sketcher.Constraint("Vertical", 13))
sketch6.addConstraint(Sketcher.Constraint("Horizontal", 15))
sketch6.addConstraint(Sketcher.Constraint("Equal", 0, 2))
sketch6.addConstraint(Sketcher.Constraint("Equal", 2, 4))
sketch6.addConstraint(Sketcher.Constraint("Equal", 4, 6))
sketch6.addConstraint(Sketcher.Constraint("Equal", 8, 10))
sketch6.addConstraint(Sketcher.Constraint("Equal", 10, 12))
sketch6.addConstraint(Sketcher.Constraint("Equal", 12, 14))
sketch6.addConstraint(Sketcher.Constraint("Radius", 0, 17.728098))
sketch6.addConstraint(Sketcher.Constraint("Radius", 8, 12.869495))
sketch6.addConstraint(Sketcher.Constraint("DistanceY", 1, 2, 1, 1, 35.021371))
sketch6.addConstraint(Sketcher.Constraint("DistanceY", -1, 1, 14, 2, 77.4039))
sketch6.addConstraint(Sketcher.Constraint("DistanceX", 3, 1, 3, 2, 154.709545))
sketch6.addConstraint(Sketcher.Constraint("DistanceX", 11, 1, 11, 2, 109.779402))
sketch6.addConstraint(Sketcher.Constraint("DistanceY", 9, 2, 9, 1, 21.085352))
sketch6.addConstraint(Sketcher.Constraint("DistanceX", 0, 3, -1, 1, 72.562921))
sketch6.addConstraint(Sketcher.Constraint("DistanceY", 0, 3, -1, 1, 4.909959))
sketch6.addConstraint(Sketcher.Constraint("DistanceX", -1, 1, 12, 3, 56.105189))
pocket5 = doc.addObject("PartDesign::Pocket", "Pocket004")
body.addObject(pocket5)
pocket5.Profile = sketch6
pocket5.Type = "ThroughAll"
pocket5.Reversed = True

doc.recompute()
